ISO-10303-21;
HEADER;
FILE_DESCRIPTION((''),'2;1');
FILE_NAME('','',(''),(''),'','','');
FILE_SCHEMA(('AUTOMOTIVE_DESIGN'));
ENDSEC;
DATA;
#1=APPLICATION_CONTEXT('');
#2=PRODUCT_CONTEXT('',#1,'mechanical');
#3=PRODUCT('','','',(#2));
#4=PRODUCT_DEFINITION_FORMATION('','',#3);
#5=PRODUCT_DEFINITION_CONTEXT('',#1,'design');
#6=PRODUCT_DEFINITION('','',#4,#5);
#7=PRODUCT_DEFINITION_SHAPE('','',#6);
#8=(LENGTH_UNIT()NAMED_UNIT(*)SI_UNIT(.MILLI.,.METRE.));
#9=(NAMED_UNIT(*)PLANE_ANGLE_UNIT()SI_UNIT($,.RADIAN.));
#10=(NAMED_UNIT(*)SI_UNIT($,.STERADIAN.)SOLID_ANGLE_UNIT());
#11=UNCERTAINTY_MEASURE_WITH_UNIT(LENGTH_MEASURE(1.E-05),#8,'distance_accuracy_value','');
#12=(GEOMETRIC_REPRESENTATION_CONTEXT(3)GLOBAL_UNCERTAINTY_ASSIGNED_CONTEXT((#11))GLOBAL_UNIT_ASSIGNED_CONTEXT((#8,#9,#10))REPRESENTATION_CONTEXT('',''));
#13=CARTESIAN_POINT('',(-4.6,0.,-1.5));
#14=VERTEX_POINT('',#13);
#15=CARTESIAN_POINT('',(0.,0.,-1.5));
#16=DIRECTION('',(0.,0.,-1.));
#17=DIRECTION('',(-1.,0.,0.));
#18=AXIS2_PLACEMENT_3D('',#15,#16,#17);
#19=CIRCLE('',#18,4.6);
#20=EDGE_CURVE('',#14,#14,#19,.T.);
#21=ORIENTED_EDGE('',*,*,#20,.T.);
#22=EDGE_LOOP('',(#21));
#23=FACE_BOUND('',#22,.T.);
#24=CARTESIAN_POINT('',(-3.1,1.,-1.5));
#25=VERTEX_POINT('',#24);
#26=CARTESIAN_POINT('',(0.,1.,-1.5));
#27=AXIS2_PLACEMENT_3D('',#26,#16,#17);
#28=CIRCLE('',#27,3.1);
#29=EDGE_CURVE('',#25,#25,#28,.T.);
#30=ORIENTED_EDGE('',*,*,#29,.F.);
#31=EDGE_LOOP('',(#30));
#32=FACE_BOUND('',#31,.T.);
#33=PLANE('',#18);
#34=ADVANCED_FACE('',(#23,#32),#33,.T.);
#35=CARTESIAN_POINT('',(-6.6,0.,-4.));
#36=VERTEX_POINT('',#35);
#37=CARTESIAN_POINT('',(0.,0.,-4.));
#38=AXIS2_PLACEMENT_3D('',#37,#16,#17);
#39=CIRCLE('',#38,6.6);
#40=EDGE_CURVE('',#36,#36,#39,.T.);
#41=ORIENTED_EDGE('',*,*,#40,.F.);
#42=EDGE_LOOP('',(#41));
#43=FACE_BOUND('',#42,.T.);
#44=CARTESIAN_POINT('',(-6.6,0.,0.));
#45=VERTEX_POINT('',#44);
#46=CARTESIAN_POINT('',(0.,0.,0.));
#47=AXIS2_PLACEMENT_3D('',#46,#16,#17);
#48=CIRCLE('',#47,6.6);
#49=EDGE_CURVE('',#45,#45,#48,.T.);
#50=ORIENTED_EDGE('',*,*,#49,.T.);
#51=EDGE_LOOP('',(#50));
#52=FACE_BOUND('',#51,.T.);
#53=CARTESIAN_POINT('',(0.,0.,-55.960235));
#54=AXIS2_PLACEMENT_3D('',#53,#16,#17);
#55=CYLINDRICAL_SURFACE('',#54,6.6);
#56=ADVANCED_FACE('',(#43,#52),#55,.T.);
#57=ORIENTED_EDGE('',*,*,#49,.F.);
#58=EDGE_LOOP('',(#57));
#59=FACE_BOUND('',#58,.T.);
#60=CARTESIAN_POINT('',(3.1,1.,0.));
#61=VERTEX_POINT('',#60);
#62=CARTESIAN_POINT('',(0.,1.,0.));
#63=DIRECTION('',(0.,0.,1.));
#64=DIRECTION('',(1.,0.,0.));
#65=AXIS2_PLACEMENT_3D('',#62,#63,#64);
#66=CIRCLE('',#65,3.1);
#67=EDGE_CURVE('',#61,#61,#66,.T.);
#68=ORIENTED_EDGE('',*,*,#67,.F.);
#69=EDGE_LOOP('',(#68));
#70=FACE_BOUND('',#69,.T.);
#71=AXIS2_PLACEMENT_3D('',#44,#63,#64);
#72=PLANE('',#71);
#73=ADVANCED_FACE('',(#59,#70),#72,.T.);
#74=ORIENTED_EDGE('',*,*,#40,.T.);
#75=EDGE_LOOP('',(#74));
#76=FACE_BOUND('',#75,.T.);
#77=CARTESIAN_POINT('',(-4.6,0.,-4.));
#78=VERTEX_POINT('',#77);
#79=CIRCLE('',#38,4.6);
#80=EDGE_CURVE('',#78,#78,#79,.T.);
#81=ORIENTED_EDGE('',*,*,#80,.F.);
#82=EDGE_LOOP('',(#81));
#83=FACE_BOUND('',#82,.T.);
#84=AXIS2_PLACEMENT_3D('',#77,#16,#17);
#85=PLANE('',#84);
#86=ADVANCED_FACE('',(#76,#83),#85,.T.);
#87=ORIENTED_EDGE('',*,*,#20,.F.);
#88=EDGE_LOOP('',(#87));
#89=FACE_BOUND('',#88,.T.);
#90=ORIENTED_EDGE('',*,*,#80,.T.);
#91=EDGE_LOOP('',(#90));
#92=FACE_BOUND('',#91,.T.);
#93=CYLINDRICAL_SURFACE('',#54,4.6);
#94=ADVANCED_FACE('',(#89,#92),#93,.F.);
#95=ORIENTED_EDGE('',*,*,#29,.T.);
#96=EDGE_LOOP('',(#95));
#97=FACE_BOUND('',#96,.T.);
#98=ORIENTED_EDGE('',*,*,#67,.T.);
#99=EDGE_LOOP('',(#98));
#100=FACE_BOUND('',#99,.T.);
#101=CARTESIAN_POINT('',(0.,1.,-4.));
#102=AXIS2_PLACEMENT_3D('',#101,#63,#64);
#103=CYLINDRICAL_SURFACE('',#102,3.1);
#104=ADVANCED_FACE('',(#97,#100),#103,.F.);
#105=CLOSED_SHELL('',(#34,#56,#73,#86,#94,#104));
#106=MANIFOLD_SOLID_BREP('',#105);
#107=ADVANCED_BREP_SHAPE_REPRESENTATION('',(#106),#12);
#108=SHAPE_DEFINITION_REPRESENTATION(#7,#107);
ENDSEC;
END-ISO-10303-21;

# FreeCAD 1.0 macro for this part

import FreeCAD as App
import Part
import Sketcher

doc = App.newDocument("Part")
body = doc.addObject("PartDesign::Body", "Body")

# Sketch on XZ plane
sketch1 = body.newObject("Sketcher::SketchObject", "Sketch")
sketch1.AttachmentSupport = (doc.getObject("XZ_Plane"), [""])
sketch1.MapMode = "FlatFace"
sketch1.addGeometry([
    Part.LineSegment(App.Vector(-6.6, -4, 0), App.Vector(-6.6, 0, 0)),  # 0
    Part.LineSegment(App.Vector(-6.6, 0, 0), App.Vector(0, 0, 0)),  # 1
    Part.LineSegment(App.Vector(0, 0, 0), App.Vector(0, -1.5, 0)),  # 2
    Part.LineSegment(App.Vector(0, -1.5, 0), App.Vector(-4.6, -1.5, 0)),  # 3
    Part.LineSegment(App.Vector(-4.6, -1.5, 0), App.Vector(-4.6, -4, 0)),  # 4
    Part.LineSegment(App.Vector(-4.6, -4, 0), App.Vector(-6.6, -4, 0)),  # 5
], False)
sketch1.addConstraint([
    Sketcher.Constraint("Coincident", 0, 2, 1, 1),
    Sketcher.Constraint("Coincident", 1, 2, 2, 1),
    Sketcher.Constraint("Coincident", 2, 2, 3, 1),
    Sketcher.Constraint("Coincident", 3, 2, 4, 1),
    Sketcher.Constraint("Coincident", 4, 2, 5, 1),
    Sketcher.Constraint("Coincident", 5, 2, 0, 1),
    Sketcher.Constraint("Vertical", 0),
    Sketcher.Constraint("Horizontal", 1),
    Sketcher.Constraint("Vertical", 2),
    Sketcher.Constraint("Horizontal", 3),
    Sketcher.Constraint("Vertical", 4),
    Sketcher.Constraint("Horizontal", 5),
    Sketcher.Constraint("Coincident", 1, 2, -1, 1),
    Sketcher.Constraint("DistanceX", 5, 2, 5, 1, 2.0),
    Sketcher.Constraint("DistanceY", 0, 1, 0, 2, 4.0),
    Sketcher.Constraint("DistanceX", 1, 1, 1, 2, 6.6),
    Sketcher.Constraint("DistanceY", 2, 2, 2, 1, 1.5),
])
revolution = body.newObject("PartDesign::Revolution", "Revolution")
revolution.Profile = sketch1
revolution.ReferenceAxis = (sketch1, ["V_Axis"])
revolution.Angle = 360

# Sketch on XY plane
sketch2 = body.newObject("Sketcher::SketchObject", "Sketch001")
sketch2.AttachmentSupport = (doc.getObject("XY_Plane"), [""])
sketch2.MapMode = "FlatFace"
sketch2.addGeometry(Part.Circle(App.Vector(0, 1, 0), App.Vector(0, 0, 1), 3.1), False)
sketch2.addConstraint([
    Sketcher.Constraint("PointOnObject", 0, 3, -2),
    Sketcher.Constraint("Diameter", 0, 6.2),
    Sketcher.Constraint("DistanceY", -1, 1, 0, 3, 1.0),
])
pocket1 = body.newObject("PartDesign::Pocket", "Pocket")
pocket1.Profile = sketch2
pocket1.Type = "ThroughAll"

doc.recompute()
